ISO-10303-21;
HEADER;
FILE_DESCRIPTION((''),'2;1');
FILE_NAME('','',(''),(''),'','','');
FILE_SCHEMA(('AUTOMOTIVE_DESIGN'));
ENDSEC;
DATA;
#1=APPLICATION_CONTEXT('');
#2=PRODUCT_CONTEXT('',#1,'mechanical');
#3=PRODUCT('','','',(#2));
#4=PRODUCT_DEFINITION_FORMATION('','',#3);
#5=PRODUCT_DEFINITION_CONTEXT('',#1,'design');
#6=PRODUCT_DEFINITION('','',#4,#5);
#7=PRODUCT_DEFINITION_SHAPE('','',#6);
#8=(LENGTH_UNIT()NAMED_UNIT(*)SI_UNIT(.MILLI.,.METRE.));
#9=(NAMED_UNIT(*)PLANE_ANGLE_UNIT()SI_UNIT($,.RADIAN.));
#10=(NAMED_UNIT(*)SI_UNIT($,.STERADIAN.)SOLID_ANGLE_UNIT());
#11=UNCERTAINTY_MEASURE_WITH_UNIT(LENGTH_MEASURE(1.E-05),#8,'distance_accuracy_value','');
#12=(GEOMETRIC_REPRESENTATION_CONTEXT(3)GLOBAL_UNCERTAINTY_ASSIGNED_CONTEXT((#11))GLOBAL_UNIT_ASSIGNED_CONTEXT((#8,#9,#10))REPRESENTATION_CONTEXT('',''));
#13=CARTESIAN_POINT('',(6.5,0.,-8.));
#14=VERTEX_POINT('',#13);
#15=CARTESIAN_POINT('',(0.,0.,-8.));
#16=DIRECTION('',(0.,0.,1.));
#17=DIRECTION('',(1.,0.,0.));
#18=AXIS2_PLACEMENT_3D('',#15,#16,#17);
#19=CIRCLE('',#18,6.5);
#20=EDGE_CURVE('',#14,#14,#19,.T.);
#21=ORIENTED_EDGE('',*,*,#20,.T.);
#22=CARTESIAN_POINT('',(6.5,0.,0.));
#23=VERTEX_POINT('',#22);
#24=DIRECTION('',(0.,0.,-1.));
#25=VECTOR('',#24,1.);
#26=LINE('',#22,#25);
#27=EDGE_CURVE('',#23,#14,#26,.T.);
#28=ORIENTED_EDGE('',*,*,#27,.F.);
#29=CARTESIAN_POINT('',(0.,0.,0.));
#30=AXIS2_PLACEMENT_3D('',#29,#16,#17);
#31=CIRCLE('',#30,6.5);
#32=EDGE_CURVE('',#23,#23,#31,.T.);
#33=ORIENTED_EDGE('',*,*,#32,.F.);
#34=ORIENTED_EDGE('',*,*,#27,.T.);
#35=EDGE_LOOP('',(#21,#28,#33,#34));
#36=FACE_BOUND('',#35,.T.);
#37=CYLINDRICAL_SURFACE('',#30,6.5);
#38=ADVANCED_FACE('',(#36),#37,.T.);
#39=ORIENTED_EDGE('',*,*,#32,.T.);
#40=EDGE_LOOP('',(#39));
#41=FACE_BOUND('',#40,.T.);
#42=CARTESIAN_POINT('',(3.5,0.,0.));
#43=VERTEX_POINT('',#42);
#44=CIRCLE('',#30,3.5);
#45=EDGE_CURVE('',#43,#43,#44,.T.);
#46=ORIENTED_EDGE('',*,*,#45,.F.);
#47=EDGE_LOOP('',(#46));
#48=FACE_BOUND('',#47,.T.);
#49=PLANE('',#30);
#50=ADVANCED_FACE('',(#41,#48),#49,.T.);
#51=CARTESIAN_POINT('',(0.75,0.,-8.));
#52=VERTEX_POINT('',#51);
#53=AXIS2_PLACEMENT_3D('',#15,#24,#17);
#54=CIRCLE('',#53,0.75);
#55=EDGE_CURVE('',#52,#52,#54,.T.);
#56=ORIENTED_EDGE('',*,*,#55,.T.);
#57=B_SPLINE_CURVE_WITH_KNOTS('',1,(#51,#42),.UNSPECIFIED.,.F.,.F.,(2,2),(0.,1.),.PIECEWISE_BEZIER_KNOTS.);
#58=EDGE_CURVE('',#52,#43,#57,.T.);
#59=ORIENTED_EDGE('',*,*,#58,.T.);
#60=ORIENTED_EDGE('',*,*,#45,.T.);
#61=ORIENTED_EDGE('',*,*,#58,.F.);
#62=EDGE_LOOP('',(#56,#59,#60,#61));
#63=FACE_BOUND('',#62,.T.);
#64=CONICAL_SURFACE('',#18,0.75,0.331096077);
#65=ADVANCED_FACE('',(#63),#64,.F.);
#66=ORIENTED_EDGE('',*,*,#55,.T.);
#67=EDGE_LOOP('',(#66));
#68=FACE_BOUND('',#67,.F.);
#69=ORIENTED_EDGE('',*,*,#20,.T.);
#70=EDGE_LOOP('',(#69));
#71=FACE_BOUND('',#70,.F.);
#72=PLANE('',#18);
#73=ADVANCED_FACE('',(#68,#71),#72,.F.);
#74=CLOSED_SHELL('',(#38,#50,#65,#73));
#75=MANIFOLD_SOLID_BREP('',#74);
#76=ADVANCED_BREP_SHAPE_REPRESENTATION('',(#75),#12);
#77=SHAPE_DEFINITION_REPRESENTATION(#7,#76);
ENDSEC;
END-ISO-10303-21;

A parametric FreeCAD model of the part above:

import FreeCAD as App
import Part
import Sketcher
from FreeCAD import Vector

doc = App.newDocument("Part")
params = doc.addObject("Spreadsheet::Sheet", "Params")
for row, (alias, value) in enumerate([
    ("sketch1_diameter", "13 mm"),
    ("pad1_length", "8 mm"),
    ("sketch2_diameter", "1.5 mm"),
    ("sketch3_diameter", "7 mm"),
], start=1):
    params.set(f"A{row}", alias)
    params.set(f"B{row}", "=" + value)
    params.setAlias(f"B{row}", alias)

body = doc.addObject("PartDesign::Body", "Body")

# Sketch on XY plane
sketch1 = body.newObject("Sketcher::SketchObject", "Sketch")
sketch1.AttachmentSupport = (doc.getObject("XY_Plane"), [""])
sketch1.MapMode = "FlatFace"
sketch1.addGeometry(Part.Circle(Vector(0, 0, 0), Vector(0, 0, 1), 6), False)
sketch1.addConstraint([
    Sketcher.Constraint("Coincident", 0, 3, -1, 1),
    Sketcher.Constraint("Diameter", 0, 13.0),
])
sketch1.setExpression("Constraints[1]", "Params.sketch1_diameter")
pad1 = body.newObject("PartDesign::Pad", "Pad")
pad1.Profile = sketch1
pad1.setExpression("Length", "Params.pad1_length")
pad1.Reversed = True

# Sketch on XY plane
sketch2 = body.newObject("Sketcher::SketchObject", "Sketch001")
sketch2.AttachmentSupport = (doc.getObject("XY_Plane"), [""])
sketch2.MapMode = "FlatFace"
sketch2.AttachmentOffset = App.Placement(Vector(0, 0, -8), App.Rotation())
sketch2.addGeometry(Part.Circle(Vector(0, 0, 0), Vector(0, 0, 1), 0.8), False)
sketch2.addConstraint([
    Sketcher.Constraint("Coincident", 0, 3, -1, 1),
    Sketcher.Constraint("Diameter", 0, 1.5),
])
sketch2.setExpression("Constraints[1]", "Params.sketch2_diameter")

# Sketch on XY plane
sketch3 = body.newObject("Sketcher::SketchObject", "Sketch002")
sketch3.AttachmentSupport = (doc.getObject("XY_Plane"), [""])
sketch3.MapMode = "FlatFace"
sketch3.addGeometry(Part.Circle(Vector(0, 0, 0), Vector(0, 0, 1), 3.5), False)
sketch3.addConstraint([
    Sketcher.Constraint("Coincident", 0, 3, -1, 1),
    Sketcher.Constraint("Diameter", 0, 7.0),
])
sketch3.setExpression("Constraints[1]", "Params.sketch3_diameter")

subtractiveloft = body.newObject("PartDesign::SubtractiveLoft", "SubtractiveLoft")
subtractiveloft.Profile = sketch2
subtractiveloft.Sections = [sketch3]

doc.recompute()
